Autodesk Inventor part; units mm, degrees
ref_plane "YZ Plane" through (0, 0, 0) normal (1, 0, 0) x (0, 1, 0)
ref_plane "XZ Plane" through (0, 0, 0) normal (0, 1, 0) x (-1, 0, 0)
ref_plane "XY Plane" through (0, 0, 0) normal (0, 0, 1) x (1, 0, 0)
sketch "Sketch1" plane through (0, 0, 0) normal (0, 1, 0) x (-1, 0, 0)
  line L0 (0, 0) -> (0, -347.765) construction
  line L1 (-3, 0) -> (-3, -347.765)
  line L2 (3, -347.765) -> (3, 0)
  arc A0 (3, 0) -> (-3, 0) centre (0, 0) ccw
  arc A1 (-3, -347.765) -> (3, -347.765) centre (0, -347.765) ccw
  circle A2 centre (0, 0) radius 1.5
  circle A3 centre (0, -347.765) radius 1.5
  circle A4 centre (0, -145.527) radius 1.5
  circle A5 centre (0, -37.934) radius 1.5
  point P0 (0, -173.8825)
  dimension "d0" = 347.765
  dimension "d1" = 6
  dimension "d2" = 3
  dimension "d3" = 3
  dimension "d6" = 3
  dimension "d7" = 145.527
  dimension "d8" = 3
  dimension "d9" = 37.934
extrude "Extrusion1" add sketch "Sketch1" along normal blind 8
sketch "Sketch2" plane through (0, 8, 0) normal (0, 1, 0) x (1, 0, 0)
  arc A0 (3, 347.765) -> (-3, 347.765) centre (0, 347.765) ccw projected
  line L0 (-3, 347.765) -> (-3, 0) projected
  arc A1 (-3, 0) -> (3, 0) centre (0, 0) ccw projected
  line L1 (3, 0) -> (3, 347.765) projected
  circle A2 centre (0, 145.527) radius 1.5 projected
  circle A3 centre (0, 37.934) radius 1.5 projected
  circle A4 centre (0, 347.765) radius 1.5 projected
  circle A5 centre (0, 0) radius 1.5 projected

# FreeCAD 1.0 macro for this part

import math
import FreeCAD as App
import Part
import Sketcher

V = App.Vector
Q = App.Units.Quantity

doc = App.newDocument("Part")
body = doc.addObject("PartDesign::Body", "Body")

sketch1 = doc.addObject("Sketcher::SketchObject", "Sketch")
body.addObject(sketch1)
sketch1.AttachmentSupport = (doc.XZ_Plane, [""])
sketch1.MapMode = "FlatFace"
sketch1.addGeometry([
    Part.ArcOfCircle(Part.Circle(V(0, 0, 0), V(0, 0, 1), 3), math.radians(0), math.radians(180)),
    Part.LineSegment(V(3, 0, 0), V(3, -347.8, 0)),
    Part.ArcOfCircle(Part.Circle(V(0, -347.8, 0), V(0, 0, 1), 3), math.radians(180), math.radians(360)),
    Part.LineSegment(V(-3, -347.8, 0), V(-3, 0, 0)),
    Part.Circle(V(0, -347.8, 0), V(0, 0, 1), 1.5),
    Part.Circle(V(0, -145.5, 0), V(0, 0, 1), 1.5),
    Part.Circle(V(0, -37.9, 0), V(0, 0, 1), 1.5),
    Part.Circle(V(0, 0, 0), V(0, 0, 1), 1.5),
], False)
sketch1.addConstraint([
    Sketcher.Constraint("Tangent", 0, 1, 1, 1),
    Sketcher.Constraint("Tangent", 1, 2, 2, 2),
    Sketcher.Constraint("Tangent", 2, 1, 3, 1),
    Sketcher.Constraint("Tangent", 3, 2, 0, 2),
    Sketcher.Constraint("Vertical", 1),
    Sketcher.Constraint("Vertical", 3),
    Sketcher.Constraint("Coincident", 0, 3, -1, 1),
    Sketcher.Constraint("Coincident", 7, 3, -1, 1),
    Sketcher.Constraint("Coincident", 4, 3, 2, 3),
    Sketcher.Constraint("Equal", 4, 5),
    Sketcher.Constraint("Equal", 5, 6),
    Sketcher.Constraint("Equal", 6, 7),
    Sketcher.Constraint("PointOnObject", 5, 3, -2),
    Sketcher.Constraint("PointOnObject", 6, 3, -2),
    Sketcher.Constraint("Diameter", 4, Q("3 mm")),
    Sketcher.Constraint("Radius", 0, Q("3 mm")),
    Sketcher.Constraint("DistanceY", 1, 2, 1, 1, Q("347.765 mm")),
    Sketcher.Constraint("DistanceY", 5, 3, -1, 1, Q("145.527 mm")),
    Sketcher.Constraint("DistanceY", 6, 3, -1, 1, Q("37.934 mm")),
])
pad1 = doc.addObject("PartDesign::Pad", "Pad")
body.addObject(pad1)
pad1.Profile = sketch1
pad1.Length = 8
pad1.Reversed = True

doc.recompute()
